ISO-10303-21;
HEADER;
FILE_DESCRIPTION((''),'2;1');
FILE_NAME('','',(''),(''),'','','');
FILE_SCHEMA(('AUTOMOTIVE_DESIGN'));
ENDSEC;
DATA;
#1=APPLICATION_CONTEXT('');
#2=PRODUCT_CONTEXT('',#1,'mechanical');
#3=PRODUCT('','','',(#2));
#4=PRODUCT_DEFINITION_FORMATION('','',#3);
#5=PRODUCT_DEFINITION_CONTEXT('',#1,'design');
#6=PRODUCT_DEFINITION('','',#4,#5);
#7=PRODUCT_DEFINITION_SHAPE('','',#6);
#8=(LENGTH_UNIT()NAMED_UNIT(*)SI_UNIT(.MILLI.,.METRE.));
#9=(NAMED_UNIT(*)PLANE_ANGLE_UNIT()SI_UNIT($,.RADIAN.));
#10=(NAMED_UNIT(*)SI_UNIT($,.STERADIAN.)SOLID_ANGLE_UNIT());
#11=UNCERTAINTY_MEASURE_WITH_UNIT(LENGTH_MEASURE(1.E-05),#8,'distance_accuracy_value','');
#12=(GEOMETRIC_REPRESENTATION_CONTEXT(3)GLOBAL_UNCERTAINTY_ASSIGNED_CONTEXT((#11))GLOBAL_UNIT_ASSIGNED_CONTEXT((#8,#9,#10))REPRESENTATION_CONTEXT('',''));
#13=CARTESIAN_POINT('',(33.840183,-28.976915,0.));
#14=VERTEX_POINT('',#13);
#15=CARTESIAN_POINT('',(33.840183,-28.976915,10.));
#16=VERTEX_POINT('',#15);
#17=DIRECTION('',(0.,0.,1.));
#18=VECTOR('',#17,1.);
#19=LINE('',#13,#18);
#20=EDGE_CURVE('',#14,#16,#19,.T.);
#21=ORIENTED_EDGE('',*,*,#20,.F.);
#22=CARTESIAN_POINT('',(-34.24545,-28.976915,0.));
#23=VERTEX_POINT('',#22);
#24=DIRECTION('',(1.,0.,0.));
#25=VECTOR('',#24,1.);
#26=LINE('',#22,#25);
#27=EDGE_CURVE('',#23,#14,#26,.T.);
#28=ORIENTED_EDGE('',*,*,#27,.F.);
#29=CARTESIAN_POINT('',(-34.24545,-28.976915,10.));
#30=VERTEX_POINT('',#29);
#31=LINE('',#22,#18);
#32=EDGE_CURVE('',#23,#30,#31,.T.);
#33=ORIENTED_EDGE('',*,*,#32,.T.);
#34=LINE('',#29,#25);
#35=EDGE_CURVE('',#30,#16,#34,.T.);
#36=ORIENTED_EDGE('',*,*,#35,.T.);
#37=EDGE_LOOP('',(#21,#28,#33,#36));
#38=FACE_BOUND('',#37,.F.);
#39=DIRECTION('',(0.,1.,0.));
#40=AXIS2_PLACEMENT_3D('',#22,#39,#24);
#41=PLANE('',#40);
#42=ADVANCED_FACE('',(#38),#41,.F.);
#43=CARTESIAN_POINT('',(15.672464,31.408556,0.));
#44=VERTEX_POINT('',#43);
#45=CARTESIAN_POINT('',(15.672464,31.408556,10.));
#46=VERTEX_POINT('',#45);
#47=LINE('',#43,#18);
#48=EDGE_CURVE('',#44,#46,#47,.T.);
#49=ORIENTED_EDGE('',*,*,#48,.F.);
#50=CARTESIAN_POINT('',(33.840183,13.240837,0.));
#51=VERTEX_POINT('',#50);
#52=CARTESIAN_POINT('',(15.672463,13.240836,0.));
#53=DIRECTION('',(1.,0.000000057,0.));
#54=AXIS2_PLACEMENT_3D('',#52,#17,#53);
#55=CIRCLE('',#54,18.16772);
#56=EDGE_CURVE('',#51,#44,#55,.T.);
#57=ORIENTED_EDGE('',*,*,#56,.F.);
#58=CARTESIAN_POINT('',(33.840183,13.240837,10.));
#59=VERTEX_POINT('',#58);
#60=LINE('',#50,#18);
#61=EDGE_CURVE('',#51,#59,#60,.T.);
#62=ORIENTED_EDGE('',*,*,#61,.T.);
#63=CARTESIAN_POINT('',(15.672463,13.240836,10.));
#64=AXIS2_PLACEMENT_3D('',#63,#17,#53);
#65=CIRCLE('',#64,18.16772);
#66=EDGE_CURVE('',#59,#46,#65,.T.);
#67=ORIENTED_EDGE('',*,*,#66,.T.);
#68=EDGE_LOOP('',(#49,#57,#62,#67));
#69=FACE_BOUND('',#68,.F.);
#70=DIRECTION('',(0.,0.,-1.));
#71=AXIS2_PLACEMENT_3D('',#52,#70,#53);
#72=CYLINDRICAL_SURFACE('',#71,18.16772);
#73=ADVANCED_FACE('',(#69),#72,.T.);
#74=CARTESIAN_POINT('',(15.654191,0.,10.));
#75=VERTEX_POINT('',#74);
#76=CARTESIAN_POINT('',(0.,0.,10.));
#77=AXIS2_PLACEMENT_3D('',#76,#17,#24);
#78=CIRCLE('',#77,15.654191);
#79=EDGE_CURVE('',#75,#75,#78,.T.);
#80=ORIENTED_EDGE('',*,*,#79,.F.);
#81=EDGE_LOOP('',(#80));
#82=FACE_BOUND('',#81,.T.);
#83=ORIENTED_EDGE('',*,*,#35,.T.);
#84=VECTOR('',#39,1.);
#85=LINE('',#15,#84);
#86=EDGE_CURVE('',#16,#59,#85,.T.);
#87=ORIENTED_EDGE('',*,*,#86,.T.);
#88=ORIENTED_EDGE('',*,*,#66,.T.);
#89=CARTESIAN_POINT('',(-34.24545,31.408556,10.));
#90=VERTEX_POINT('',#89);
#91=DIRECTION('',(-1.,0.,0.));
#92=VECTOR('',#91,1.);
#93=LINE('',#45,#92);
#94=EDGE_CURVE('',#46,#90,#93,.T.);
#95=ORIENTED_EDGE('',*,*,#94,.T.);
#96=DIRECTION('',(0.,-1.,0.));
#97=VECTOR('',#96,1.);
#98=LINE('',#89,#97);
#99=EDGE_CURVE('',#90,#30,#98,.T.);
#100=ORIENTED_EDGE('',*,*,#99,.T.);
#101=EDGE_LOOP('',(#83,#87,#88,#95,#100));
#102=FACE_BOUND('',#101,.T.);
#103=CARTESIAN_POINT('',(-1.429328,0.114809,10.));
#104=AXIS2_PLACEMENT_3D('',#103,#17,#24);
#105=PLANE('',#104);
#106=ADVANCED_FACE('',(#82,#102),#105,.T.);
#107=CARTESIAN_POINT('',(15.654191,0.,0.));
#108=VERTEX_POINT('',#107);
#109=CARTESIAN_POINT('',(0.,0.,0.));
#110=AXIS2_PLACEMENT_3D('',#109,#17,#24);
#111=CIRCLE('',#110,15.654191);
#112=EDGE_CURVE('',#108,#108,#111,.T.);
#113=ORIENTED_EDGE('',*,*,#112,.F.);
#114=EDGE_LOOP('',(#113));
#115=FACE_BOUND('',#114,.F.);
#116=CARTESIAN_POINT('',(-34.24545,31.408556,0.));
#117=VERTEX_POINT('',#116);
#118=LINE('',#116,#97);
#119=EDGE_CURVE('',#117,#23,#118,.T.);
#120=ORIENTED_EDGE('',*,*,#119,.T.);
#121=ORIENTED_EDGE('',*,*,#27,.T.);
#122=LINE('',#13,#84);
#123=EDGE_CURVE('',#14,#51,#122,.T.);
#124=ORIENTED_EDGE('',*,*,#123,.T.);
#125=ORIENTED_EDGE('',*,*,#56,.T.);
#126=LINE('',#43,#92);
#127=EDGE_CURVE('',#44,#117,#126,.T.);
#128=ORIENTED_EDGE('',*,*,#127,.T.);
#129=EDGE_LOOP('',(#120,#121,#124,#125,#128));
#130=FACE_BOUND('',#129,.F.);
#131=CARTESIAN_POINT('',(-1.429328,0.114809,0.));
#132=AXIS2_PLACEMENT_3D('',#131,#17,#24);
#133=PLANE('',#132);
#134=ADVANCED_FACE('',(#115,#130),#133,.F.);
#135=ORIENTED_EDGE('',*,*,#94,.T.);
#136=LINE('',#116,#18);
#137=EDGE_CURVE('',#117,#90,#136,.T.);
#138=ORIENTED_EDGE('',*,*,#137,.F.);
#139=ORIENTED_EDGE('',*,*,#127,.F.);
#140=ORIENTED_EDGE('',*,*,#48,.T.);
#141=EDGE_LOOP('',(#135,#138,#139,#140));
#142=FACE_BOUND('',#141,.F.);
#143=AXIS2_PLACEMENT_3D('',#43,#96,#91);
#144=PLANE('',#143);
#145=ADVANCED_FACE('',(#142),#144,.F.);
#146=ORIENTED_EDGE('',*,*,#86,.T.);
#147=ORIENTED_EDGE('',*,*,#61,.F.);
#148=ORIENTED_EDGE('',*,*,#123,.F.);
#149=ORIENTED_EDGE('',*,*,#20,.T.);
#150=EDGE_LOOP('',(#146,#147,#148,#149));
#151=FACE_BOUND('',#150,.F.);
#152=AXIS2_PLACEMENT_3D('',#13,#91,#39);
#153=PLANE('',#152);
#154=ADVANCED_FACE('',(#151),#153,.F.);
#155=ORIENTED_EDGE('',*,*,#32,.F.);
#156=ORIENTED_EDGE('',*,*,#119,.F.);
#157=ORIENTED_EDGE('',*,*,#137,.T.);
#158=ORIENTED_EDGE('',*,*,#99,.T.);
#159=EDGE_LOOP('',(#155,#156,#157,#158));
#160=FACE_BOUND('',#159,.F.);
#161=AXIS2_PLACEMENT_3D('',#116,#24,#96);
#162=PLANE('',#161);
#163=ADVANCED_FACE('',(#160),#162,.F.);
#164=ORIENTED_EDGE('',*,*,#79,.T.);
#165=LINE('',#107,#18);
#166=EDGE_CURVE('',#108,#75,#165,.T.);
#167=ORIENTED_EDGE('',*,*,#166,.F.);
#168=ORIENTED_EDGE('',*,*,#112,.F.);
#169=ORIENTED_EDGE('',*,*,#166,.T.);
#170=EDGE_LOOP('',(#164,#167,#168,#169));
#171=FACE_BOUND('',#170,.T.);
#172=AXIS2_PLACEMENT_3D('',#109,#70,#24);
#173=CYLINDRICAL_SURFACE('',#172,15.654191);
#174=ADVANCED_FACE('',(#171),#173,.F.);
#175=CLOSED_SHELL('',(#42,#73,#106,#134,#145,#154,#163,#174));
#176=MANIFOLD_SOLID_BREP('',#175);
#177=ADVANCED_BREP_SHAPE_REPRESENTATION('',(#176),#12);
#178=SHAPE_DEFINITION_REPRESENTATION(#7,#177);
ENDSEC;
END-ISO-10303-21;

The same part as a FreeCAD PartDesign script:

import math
import FreeCAD as App
import Part
import Sketcher
Q = App.Units.Quantity

doc = App.newDocument("Part")
params = doc.addObject("Spreadsheet::Sheet", "Params")
for row, (alias, value) in enumerate([
    ("pad1_length", "10 mm"),
], start=1):
    params.set(f"A{row}", alias)
    params.set(f"B{row}", "=" + value)
    params.setAlias(f"B{row}", alias)

body = doc.addObject("PartDesign::Body", "Body")

# Sketch on XY plane
sketch1 = doc.addObject("Sketcher::SketchObject", "Sketch")
body.addObject(sketch1)
sketch1.AttachmentSupport = (doc.XY_Plane, [""])
sketch1.MapMode = "FlatFace"
sketch1.addGeometry([
    Part.LineSegment(App.Vector(16, 31, 0), App.Vector(-34, 31, 0)),  # 0
    Part.LineSegment(App.Vector(-34, 31, 0), App.Vector(-34, -29, 0)),  # 1
    Part.LineSegment(App.Vector(-34, -29, 0), App.Vector(34, -29, 0)),  # 2
    Part.LineSegment(App.Vector(34, -29, 0), App.Vector(34, 13, 0)),  # 3
    Part.ArcOfCircle(Part.Circle(App.Vector(16, 13, 0), App.Vector(0, 0, 1), 18), math.radians(0), math.radians(90)),  # 4
    Part.Circle(App.Vector(0, 0, 0), App.Vector(0, 0, 1), 16),  # 5
], False)
sketch1.addConstraint([
    Sketcher.Constraint("Coincident", 0, 2, 1, 1),
    Sketcher.Constraint("Coincident", 1, 2, 2, 1),
    Sketcher.Constraint("Coincident", 2, 2, 3, 1),
    Sketcher.Constraint("Tangent", 3, 2, 4, 1),
    Sketcher.Constraint("Tangent", 4, 2, 0, 1),
    Sketcher.Constraint("Horizontal", 0),
    Sketcher.Constraint("Vertical", 1),
    Sketcher.Constraint("Horizontal", 2),
    Sketcher.Constraint("Vertical", 3),
    Sketcher.Constraint("Coincident", 5, 3, -1, 1),
    Sketcher.Constraint("Radius", 4, Q("18.16772 mm")),
    Sketcher.Constraint("Diameter", 5, Q("31.308382 mm")),
    Sketcher.Constraint("DistanceY", 1, 2, 1, 1, Q("60.385471 mm")),
    Sketcher.Constraint("DistanceX", 0, 2, 0, 1, Q("49.917914 mm")),
    Sketcher.Constraint("DistanceX", 0, 2, -1, 1, Q("34.24545 mm")),
    Sketcher.Constraint("DistanceY", -1, 1, 4, 3, Q("13.240836 mm")),
])
pad1 = doc.addObject("PartDesign::Pad", "Pad")
body.addObject(pad1)
pad1.Profile = sketch1
pad1.setExpression("Length", "Params.pad1_length")

doc.recompute()
